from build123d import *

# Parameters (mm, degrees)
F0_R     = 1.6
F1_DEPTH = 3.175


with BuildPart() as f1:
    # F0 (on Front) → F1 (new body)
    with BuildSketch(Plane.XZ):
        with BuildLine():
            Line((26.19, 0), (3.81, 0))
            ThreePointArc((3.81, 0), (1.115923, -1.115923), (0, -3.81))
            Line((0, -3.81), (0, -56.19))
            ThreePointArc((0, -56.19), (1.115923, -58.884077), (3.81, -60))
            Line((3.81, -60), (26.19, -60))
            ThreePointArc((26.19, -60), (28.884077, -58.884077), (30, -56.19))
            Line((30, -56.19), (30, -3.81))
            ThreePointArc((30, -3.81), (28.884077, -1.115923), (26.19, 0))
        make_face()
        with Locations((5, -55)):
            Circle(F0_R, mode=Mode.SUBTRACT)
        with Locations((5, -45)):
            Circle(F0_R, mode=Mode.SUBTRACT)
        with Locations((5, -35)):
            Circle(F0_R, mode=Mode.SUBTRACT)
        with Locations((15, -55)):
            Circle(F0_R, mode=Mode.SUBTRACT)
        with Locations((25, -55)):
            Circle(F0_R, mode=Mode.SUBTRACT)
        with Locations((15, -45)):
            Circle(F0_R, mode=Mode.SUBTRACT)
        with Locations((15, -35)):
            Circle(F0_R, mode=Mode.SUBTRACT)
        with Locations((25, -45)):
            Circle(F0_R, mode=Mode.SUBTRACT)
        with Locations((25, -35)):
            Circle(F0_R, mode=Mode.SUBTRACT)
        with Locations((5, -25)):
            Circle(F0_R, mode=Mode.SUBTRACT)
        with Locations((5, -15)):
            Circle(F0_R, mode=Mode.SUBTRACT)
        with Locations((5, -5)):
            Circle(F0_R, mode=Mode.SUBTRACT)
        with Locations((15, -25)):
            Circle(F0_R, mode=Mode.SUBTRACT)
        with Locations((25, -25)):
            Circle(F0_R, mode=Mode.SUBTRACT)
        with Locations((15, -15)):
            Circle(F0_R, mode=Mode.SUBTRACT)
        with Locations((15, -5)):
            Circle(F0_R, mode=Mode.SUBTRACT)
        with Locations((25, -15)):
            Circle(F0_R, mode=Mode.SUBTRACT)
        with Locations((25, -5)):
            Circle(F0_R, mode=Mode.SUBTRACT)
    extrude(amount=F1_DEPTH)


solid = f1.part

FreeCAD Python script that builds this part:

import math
import FreeCAD as App
import Part
import Sketcher
Q = App.Units.Quantity

doc = App.newDocument("Part")
body = doc.addObject("PartDesign::Body", "Body")

sketch1 = body.newObject("Sketcher::SketchObject", "Sketch")
sketch1.AttachmentSupport = (doc.getObject("XZ_Plane"), [""])
sketch1.MapMode = "FlatFace"
sketch1.addGeometry([
    Part.LineSegment(App.Vector(26.19, 0, 0), App.Vector(3.81, 0, 0)),
    Part.ArcOfCircle(Part.Circle(App.Vector(3.809999, -3.809999, 0), App.Vector(0, 0, 1), 3.809999), math.radians(89.999992), math.radians(180.000008)),
    Part.LineSegment(App.Vector(0, -3.81, 0), App.Vector(0, -56.19, 0)),
    Part.ArcOfCircle(Part.Circle(App.Vector(3.809999, -56.190001, 0), App.Vector(0, 0, 1), 3.809999), math.radians(179.999992), math.radians(270.000008)),
    Part.LineSegment(App.Vector(3.81, -60, 0), App.Vector(26.19, -60, 0)),
    Part.ArcOfCircle(Part.Circle(App.Vector(26.190001, -56.190001, 0), App.Vector(0, 0, 1), 3.809999), math.radians(-90.000008), math.radians(0.000008)),
    Part.LineSegment(App.Vector(30, -56.19, 0), App.Vector(30, -3.81, 0)),
    Part.ArcOfCircle(Part.Circle(App.Vector(26.190001, -3.809999, 0), App.Vector(0, 0, 1), 3.809999), math.radians(-0.000008), math.radians(90.000008)),
    Part.Circle(App.Vector(5, -55, 0), App.Vector(0, 0, 1), 1.6),
    Part.Circle(App.Vector(5, -45, 0), App.Vector(0, 0, 1), 1.6),
    Part.Circle(App.Vector(15, -55, 0), App.Vector(0, 0, 1), 1.6),
    Part.Circle(App.Vector(15, -45, 0), App.Vector(0, 0, 1), 1.6),
    Part.Circle(App.Vector(5, -35, 0), App.Vector(0, 0, 1), 1.6),
    Part.Circle(App.Vector(15, -35, 0), App.Vector(0, 0, 1), 1.6),
    Part.Circle(App.Vector(25, -55, 0), App.Vector(0, 0, 1), 1.6),
    Part.Circle(App.Vector(25, -45, 0), App.Vector(0, 0, 1), 1.6),
    Part.Circle(App.Vector(25, -35, 0), App.Vector(0, 0, 1), 1.6),
    Part.Circle(App.Vector(5, -25, 0), App.Vector(0, 0, 1), 1.6),
    Part.Circle(App.Vector(15, -25, 0), App.Vector(0, 0, 1), 1.6),
    Part.Circle(App.Vector(5, -15, 0), App.Vector(0, 0, 1), 1.6),
    Part.Circle(App.Vector(5, -5, 0), App.Vector(0, 0, 1), 1.6),
    Part.Circle(App.Vector(15, -15, 0), App.Vector(0, 0, 1), 1.6),
    Part.Circle(App.Vector(15, -5, 0), App.Vector(0, 0, 1), 1.6),
    Part.Circle(App.Vector(25, -25, 0), App.Vector(0, 0, 1), 1.6),
    Part.Circle(App.Vector(25, -15, 0), App.Vector(0, 0, 1), 1.6),
    Part.Circle(App.Vector(25, -5, 0), App.Vector(0, 0, 1), 1.6),
], False)
sketch1.addConstraint([
    Sketcher.Constraint("Tangent", 0, 2, 1, 1),
    Sketcher.Constraint("Tangent", 1, 2, 2, 1),
    Sketcher.Constraint("Tangent", 2, 2, 3, 1),
    Sketcher.Constraint("Tangent", 3, 2, 4, 1),
    Sketcher.Constraint("Tangent", 4, 2, 5, 1),
    Sketcher.Constraint("Tangent", 5, 2, 6, 1),
    Sketcher.Constraint("Tangent", 6, 2, 7, 1),
    Sketcher.Constraint("Tangent", 7, 2, 0, 1),
    Sketcher.Constraint("Horizontal", 0),
    Sketcher.Constraint("Vertical", 2),
    Sketcher.Constraint("Horizontal", 4),
    Sketcher.Constraint("Vertical", 6),
    Sketcher.Constraint("Equal", 1, 3),
    Sketcher.Constraint("Equal", 3, 5),
    Sketcher.Constraint("Equal", 5, 7),
    Sketcher.Constraint("Equal", 8, 9),
    Sketcher.Constraint("Equal", 9, 10),
    Sketcher.Constraint("Equal", 10, 11),
    Sketcher.Constraint("Equal", 11, 12),
    Sketcher.Constraint("Equal", 12, 13),
    Sketcher.Constraint("Equal", 13, 14),
    Sketcher.Constraint("Equal", 14, 15),
    Sketcher.Constraint("Equal", 15, 16),
    Sketcher.Constraint("Equal", 16, 17),
    Sketcher.Constraint("Equal", 17, 18),
    Sketcher.Constraint("Equal", 18, 19),
    Sketcher.Constraint("Equal", 19, 20),
    Sketcher.Constraint("Equal", 20, 21),
    Sketcher.Constraint("Equal", 21, 22),
    Sketcher.Constraint("Equal", 22, 23),
    Sketcher.Constraint("Equal", 23, 24),
    Sketcher.Constraint("Equal", 24, 25),
    Sketcher.Constraint("PointOnObject", 0, 2, -1),
    Sketcher.Constraint("PointOnObject", 1, 2, -2),
    Sketcher.Constraint("Horizontal", 8, 3, 10, 3),
    Sketcher.Constraint("Horizontal", 9, 3, 11, 3),
    Sketcher.Constraint("Horizontal", 12, 3, 13, 3),
    Sketcher.Constraint("Horizontal", 10, 3, 14, 3),
    Sketcher.Constraint("Horizontal", 11, 3, 15, 3),
    Sketcher.Constraint("Horizontal", 13, 3, 16, 3),
    Sketcher.Constraint("Horizontal", 17, 3, 18, 3),
    Sketcher.Constraint("Horizontal", 19, 3, 21, 3),
    Sketcher.Constraint("Horizontal", 20, 3, 22, 3),
    Sketcher.Constraint("Horizontal", 18, 3, 23, 3),
    Sketcher.Constraint("Horizontal", 21, 3, 24, 3),
    Sketcher.Constraint("Horizontal", 22, 3, 25, 3),
    Sketcher.Constraint("Vertical", 8, 3, 9, 3),
    Sketcher.Constraint("Vertical", 10, 3, 11, 3),
    Sketcher.Constraint("Vertical", 9, 3, 12, 3),
    Sketcher.Constraint("Vertical", 11, 3, 13, 3),
    Sketcher.Constraint("Vertical", 14, 3, 15, 3),
    Sketcher.Constraint("Vertical", 15, 3, 16, 3),
    Sketcher.Constraint("Vertical", 12, 3, 17, 3),
    Sketcher.Constraint("Vertical", 13, 3, 18, 3),
    Sketcher.Constraint("Vertical", 17, 3, 19, 3),
    Sketcher.Constraint("Vertical", 19, 3, 20, 3),
    Sketcher.Constraint("Vertical", 18, 3, 21, 3),
    Sketcher.Constraint("Vertical", 21, 3, 22, 3),
    Sketcher.Constraint("Vertical", 16, 3, 23, 3),
    Sketcher.Constraint("Vertical", 23, 3, 24, 3),
    Sketcher.Constraint("Vertical", 24, 3, 25, 3),
    Sketcher.Constraint("Radius", 1, Q("0.15 in")),
    Sketcher.Constraint("Diameter", 8, Q("3.2 mm")),
    Sketcher.Constraint("DistanceX", 0, 2, 0, 1, Q("22.38 mm")),
    Sketcher.Constraint("DistanceY", 2, 2, 2, 1, Q("52.38 mm")),
    Sketcher.Constraint("DistanceX", -1, 1, 8, 3, Q("5 mm")),
    Sketcher.Constraint("DistanceY", 8, 3, -1, 1, Q("55 mm")),
    Sketcher.Constraint("DistanceY", 9, 3, -1, 1, Q("45 mm")),
    Sketcher.Constraint("DistanceX", -1, 1, 10, 3, Q("15 mm")),
    Sketcher.Constraint("DistanceY", 12, 3, -1, 1, Q("35 mm")),
    Sketcher.Constraint("DistanceX", -1, 1, 14, 3, Q("25 mm")),
    Sketcher.Constraint("DistanceY", 17, 3, -1, 1, Q("25 mm")),
    Sketcher.Constraint("DistanceY", 19, 3, -1, 1, Q("15 mm")),
    Sketcher.Constraint("DistanceY", 20, 3, -1, 1, Q("5 mm")),
])
pad1 = body.newObject("PartDesign::Pad", "Pad")
pad1.Profile = sketch1
pad1.Length = Q("0.125 in")

doc.recompute()
